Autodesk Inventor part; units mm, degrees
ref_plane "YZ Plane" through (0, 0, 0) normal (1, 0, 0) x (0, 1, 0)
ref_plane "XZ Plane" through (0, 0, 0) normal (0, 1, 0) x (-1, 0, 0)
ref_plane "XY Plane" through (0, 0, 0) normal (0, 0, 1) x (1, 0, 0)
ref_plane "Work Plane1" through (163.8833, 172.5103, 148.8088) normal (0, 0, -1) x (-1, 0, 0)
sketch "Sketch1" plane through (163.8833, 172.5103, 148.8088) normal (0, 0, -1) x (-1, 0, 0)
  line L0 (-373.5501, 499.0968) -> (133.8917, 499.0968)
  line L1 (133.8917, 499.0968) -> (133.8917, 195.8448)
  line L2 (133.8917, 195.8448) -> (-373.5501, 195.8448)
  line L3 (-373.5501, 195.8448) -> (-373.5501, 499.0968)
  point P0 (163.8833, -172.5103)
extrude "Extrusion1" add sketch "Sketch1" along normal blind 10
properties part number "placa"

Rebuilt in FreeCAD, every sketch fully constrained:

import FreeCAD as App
import Part
import Sketcher

doc = App.newDocument("Part")
body = doc.addObject("PartDesign::Body", "Body")

# Sketch on XY plane
sketch1 = body.newObject("Sketcher::SketchObject", "Sketch")
sketch1.AttachmentSupport = (doc.getObject("XY_Plane"), [""])
sketch1.MapMode = "FlatFace"
sketch1.AttachmentOffset = App.Placement(App.Vector(0, 0, 148.8088), App.Rotation())
sketch1.addGeometry(Part.LineSegment(App.Vector(29.9916, 671.6071, 0), App.Vector(537.4334, 671.6071, 0)), False)
sketch1.addGeometry(Part.LineSegment(App.Vector(537.4334, 671.6071, 0), App.Vector(537.4334, 368.3551, 0)), False)
sketch1.addGeometry(Part.LineSegment(App.Vector(537.4334, 368.3551, 0), App.Vector(29.9916, 368.3551, 0)), False)
sketch1.addGeometry(Part.LineSegment(App.Vector(29.9916, 368.3551, 0), App.Vector(29.9916, 671.6071, 0)), False)
sketch1.addConstraint(Sketcher.Constraint("Coincident", 0, 2, 1, 1))
sketch1.addConstraint(Sketcher.Constraint("Coincident", 1, 2, 2, 1))
sketch1.addConstraint(Sketcher.Constraint("Coincident", 2, 2, 3, 1))
sketch1.addConstraint(Sketcher.Constraint("Coincident", 3, 2, 0, 1))
sketch1.addConstraint(Sketcher.Constraint("Horizontal", 0))
sketch1.addConstraint(Sketcher.Constraint("Vertical", 1))
sketch1.addConstraint(Sketcher.Constraint("Horizontal", 2))
sketch1.addConstraint(Sketcher.Constraint("Vertical", 3))
sketch1.addConstraint(Sketcher.Constraint("DistanceY", 1, 2, 1, 1, 303.252))
sketch1.addConstraint(Sketcher.Constraint("DistanceX", 0, 1, 0, 2, 507.4418))
sketch1.addConstraint(Sketcher.Constraint("DistanceY", -1, 1, 0, 2, 671.607))
sketch1.addConstraint(Sketcher.Constraint("DistanceX", -1, 1, 0, 2, 537.4334))
pad1 = body.newObject("PartDesign::Pad", "Pad")
pad1.Profile = sketch1
pad1.Length = 10
pad1.Reversed = True

doc.recompute()
